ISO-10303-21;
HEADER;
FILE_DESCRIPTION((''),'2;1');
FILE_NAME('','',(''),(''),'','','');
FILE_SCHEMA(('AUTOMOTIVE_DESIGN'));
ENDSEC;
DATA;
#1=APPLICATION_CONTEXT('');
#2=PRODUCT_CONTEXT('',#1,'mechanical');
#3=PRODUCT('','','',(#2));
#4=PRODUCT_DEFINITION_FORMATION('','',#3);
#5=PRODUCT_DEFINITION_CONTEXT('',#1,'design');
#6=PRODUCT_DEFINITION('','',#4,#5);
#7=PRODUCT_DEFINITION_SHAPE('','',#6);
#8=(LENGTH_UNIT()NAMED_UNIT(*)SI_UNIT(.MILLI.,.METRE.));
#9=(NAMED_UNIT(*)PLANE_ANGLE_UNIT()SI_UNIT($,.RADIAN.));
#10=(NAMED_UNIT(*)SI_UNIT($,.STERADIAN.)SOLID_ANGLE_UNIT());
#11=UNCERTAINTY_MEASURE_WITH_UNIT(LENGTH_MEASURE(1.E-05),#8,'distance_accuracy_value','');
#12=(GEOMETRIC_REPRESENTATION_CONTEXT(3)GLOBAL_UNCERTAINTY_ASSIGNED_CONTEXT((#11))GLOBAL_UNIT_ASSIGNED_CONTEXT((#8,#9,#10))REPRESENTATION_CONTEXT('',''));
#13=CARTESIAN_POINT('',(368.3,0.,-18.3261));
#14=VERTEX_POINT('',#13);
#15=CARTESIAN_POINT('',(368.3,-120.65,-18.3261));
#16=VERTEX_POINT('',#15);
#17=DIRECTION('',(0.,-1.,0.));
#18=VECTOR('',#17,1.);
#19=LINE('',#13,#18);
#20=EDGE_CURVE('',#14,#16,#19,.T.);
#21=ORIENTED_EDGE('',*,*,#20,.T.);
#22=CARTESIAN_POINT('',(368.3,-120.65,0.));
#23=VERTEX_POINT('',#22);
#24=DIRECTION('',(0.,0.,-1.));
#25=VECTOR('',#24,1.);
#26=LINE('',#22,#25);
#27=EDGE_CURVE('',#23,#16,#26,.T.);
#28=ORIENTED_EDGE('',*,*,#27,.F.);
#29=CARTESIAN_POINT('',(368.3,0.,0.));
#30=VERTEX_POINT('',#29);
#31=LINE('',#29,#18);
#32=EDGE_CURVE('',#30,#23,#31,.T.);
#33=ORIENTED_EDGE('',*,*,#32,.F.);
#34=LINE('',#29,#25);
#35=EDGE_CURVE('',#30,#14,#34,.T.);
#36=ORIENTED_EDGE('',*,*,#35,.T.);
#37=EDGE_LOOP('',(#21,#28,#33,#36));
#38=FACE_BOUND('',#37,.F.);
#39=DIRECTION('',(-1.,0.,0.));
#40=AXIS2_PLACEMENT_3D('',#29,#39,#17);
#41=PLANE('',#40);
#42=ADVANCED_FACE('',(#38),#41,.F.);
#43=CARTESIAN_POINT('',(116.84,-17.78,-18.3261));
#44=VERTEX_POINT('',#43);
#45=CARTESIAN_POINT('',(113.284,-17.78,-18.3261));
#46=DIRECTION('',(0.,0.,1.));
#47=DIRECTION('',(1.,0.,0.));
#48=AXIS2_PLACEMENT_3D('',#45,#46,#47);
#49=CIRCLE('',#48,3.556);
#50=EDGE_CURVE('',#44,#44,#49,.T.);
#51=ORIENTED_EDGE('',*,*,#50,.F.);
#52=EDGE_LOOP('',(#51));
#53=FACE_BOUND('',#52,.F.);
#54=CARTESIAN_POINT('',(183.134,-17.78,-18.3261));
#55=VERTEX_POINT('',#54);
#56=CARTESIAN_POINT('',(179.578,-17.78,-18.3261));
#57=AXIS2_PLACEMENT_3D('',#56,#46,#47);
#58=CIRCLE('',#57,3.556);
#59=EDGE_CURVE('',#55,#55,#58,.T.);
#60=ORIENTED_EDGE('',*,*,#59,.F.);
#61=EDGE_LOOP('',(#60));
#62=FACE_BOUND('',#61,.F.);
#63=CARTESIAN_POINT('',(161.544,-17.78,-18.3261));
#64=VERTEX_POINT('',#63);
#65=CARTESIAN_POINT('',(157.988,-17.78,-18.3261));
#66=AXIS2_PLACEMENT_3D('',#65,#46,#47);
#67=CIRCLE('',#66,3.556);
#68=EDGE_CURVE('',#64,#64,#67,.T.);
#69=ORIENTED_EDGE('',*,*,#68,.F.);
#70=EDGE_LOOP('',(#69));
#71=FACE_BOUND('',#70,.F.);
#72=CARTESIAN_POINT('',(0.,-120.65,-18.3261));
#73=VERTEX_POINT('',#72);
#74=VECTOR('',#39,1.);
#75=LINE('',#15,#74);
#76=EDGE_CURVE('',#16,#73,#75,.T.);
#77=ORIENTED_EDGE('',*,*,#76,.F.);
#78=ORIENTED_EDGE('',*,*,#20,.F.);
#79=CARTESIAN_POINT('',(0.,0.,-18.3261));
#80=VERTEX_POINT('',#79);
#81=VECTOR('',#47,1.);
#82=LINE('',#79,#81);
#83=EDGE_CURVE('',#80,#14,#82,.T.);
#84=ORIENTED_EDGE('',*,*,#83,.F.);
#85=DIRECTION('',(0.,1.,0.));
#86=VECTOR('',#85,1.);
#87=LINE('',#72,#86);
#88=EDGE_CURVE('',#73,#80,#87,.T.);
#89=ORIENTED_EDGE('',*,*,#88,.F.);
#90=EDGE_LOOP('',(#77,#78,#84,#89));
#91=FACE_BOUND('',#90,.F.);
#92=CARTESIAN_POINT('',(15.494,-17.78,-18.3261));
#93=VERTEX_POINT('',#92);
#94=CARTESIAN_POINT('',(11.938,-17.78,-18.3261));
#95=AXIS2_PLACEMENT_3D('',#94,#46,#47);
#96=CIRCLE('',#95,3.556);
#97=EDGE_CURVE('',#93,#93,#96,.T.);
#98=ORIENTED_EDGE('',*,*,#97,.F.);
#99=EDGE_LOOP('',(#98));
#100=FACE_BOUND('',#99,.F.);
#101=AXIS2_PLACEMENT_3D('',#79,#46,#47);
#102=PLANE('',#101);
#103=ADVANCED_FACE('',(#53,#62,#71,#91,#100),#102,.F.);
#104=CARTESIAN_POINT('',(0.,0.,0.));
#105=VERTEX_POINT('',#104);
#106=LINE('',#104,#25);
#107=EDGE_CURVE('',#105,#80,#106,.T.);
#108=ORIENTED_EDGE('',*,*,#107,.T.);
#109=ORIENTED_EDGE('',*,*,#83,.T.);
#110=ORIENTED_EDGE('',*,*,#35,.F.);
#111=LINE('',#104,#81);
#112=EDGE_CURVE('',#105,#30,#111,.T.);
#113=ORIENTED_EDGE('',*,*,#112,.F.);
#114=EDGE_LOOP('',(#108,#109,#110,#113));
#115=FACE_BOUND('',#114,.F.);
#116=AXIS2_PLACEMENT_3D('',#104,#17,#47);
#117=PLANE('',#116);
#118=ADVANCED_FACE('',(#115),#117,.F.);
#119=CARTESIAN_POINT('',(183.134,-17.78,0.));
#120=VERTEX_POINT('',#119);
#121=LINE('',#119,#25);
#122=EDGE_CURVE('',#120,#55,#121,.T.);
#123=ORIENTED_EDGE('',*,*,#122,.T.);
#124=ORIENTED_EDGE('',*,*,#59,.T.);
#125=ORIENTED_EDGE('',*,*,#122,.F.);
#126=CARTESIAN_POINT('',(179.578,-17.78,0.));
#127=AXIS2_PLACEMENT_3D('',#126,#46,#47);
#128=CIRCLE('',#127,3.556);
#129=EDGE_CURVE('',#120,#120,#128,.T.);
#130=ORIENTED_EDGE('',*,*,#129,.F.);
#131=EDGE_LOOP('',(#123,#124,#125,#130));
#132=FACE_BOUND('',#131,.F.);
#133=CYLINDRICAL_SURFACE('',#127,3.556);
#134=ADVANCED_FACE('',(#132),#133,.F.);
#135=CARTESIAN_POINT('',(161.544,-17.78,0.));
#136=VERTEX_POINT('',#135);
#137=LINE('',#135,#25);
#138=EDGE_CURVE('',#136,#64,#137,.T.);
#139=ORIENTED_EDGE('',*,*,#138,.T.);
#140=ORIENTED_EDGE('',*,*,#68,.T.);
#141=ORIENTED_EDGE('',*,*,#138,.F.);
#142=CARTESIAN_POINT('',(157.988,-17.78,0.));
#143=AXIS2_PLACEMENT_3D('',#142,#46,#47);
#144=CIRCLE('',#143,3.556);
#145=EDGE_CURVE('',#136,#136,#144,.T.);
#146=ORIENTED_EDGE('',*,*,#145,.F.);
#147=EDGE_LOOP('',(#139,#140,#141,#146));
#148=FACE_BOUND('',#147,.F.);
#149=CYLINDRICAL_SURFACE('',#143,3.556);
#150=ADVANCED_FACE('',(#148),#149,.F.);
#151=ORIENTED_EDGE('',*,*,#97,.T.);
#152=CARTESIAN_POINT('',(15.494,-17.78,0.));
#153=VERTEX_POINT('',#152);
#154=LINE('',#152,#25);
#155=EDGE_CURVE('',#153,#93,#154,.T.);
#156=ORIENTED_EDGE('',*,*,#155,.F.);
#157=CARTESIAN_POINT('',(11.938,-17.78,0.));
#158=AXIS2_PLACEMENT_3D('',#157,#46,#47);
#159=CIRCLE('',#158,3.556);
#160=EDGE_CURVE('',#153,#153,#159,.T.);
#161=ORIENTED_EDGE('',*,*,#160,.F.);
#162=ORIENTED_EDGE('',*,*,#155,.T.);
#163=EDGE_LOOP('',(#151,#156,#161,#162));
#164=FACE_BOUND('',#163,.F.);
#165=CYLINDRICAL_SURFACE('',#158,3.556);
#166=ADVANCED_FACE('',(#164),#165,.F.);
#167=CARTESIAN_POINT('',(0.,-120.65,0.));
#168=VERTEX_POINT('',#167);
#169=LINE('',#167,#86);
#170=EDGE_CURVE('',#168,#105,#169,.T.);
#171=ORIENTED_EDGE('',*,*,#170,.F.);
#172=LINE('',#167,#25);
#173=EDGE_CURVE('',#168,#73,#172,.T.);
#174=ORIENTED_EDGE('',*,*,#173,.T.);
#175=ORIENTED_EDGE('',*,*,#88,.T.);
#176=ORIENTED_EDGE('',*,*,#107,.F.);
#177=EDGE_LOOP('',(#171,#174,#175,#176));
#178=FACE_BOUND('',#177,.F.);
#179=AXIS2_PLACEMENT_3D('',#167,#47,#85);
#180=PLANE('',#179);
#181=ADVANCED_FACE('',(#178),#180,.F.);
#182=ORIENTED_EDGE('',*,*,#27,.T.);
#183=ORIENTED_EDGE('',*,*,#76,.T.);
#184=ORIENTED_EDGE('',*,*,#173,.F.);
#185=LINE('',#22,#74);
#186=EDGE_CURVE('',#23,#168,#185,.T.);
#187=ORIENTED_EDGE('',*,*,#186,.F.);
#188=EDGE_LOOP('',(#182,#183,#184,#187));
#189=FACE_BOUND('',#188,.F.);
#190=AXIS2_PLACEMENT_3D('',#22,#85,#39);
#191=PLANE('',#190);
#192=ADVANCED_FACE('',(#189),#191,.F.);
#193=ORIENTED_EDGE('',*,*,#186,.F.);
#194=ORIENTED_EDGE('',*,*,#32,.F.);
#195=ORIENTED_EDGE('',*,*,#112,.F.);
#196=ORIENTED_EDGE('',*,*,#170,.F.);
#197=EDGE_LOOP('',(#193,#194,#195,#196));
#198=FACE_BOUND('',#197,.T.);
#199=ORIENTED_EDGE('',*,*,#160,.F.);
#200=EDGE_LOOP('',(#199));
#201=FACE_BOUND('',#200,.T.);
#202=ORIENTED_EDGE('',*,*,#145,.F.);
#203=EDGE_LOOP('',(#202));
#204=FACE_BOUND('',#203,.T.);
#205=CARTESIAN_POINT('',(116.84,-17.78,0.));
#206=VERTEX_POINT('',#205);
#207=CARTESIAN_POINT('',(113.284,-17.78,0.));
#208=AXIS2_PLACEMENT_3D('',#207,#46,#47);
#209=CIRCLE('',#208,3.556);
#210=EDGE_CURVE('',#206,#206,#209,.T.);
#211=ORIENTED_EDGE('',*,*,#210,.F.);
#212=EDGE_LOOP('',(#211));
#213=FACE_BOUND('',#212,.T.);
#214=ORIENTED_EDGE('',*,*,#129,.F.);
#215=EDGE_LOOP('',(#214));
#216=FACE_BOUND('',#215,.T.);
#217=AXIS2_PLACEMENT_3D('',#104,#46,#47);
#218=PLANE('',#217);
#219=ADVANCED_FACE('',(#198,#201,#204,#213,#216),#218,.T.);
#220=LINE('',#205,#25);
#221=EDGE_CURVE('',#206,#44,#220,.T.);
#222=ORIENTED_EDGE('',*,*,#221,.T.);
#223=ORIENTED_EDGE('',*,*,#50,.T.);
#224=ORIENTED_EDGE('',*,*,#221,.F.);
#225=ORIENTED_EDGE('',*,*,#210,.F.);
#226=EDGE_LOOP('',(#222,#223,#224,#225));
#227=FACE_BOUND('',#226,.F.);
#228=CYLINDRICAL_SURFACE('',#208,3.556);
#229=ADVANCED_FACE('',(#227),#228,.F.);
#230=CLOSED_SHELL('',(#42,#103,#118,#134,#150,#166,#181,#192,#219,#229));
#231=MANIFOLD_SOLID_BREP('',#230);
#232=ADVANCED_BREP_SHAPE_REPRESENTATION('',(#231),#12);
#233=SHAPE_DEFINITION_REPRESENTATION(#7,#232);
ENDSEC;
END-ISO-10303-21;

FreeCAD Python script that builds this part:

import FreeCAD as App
import Part
import Sketcher
from FreeCAD import Vector
Q = App.Units.Quantity

doc = App.newDocument("Part")
body = doc.addObject("PartDesign::Body", "Body")

sketch1 = body.newObject("Sketcher::SketchObject", "Sketch")
sketch1.AttachmentSupport = (doc.getObject("XY_Plane"), [""])
sketch1.MapMode = "FlatFace"
sketch1.addGeometry(Part.LineSegment(Vector(368.3, 0, 0), Vector(0, 0, 0)), False)
sketch1.addGeometry(Part.LineSegment(Vector(0, 0, 0), Vector(0, -120.7, 0)), False)
sketch1.addGeometry(Part.LineSegment(Vector(0, -120.7, 0), Vector(368.3, -120.7, 0)), False)
sketch1.addGeometry(Part.LineSegment(Vector(368.3, -120.7, 0), Vector(368.3, 0, 0)), False)
sketch1.addGeometry(Part.Circle(Vector(11.9, -17.8, 0), Vector(0, 0, 1), 3.6), False)
sketch1.addGeometry(Part.Circle(Vector(113.3, -17.8, 0), Vector(0, 0, 1), 3.6), False)
sketch1.addGeometry(Part.Circle(Vector(158, -17.8, 0), Vector(0, 0, 1), 3.6), False)
sketch1.addGeometry(Part.Circle(Vector(179.6, -17.8, 0), Vector(0, 0, 1), 3.6), False)
sketch1.addConstraint(Sketcher.Constraint("Coincident", 0, 2, 1, 1))
sketch1.addConstraint(Sketcher.Constraint("Coincident", 1, 2, 2, 1))
sketch1.addConstraint(Sketcher.Constraint("Coincident", 2, 2, 3, 1))
sketch1.addConstraint(Sketcher.Constraint("Coincident", 3, 2, 0, 1))
sketch1.addConstraint(Sketcher.Constraint("Horizontal", 0))
sketch1.addConstraint(Sketcher.Constraint("Vertical", 1))
sketch1.addConstraint(Sketcher.Constraint("Horizontal", 2))
sketch1.addConstraint(Sketcher.Constraint("Vertical", 3))
sketch1.addConstraint(Sketcher.Constraint("Coincident", 0, 2, -1, 1))
sketch1.addConstraint(Sketcher.Constraint("Equal", 4, 5))
sketch1.addConstraint(Sketcher.Constraint("Equal", 5, 6))
sketch1.addConstraint(Sketcher.Constraint("Equal", 6, 7))
sketch1.addConstraint(Sketcher.Constraint("Horizontal", 4, 3, 5, 3))
sketch1.addConstraint(Sketcher.Constraint("Horizontal", 5, 3, 6, 3))
sketch1.addConstraint(Sketcher.Constraint("Horizontal", 6, 3, 7, 3))
sketch1.addConstraint(Sketcher.Constraint("Diameter", 4, Q("0.28 in")))
sketch1.addConstraint(Sketcher.Constraint("DistanceX", 0, 2, 0, 1, Q("14.5 in")))
sketch1.addConstraint(Sketcher.Constraint("DistanceY", 1, 2, 1, 1, Q("4.75 in")))
sketch1.addConstraint(Sketcher.Constraint("DistanceX", -1, 1, 4, 3, Q("0.47 in")))
sketch1.addConstraint(Sketcher.Constraint("DistanceX", 4, 3, 5, 3, Q("3.99 in")))
sketch1.addConstraint(Sketcher.Constraint("DistanceX", 5, 3, 6, 3, Q("1.76 in")))
sketch1.addConstraint(Sketcher.Constraint("DistanceX", 6, 3, 7, 3, Q("0.85 in")))
sketch1.addConstraint(Sketcher.Constraint("DistanceY", 1, 2, 4, 3, Q("4.05 in")))
pad1 = body.newObject("PartDesign::Pad", "Pad")
pad1.Profile = sketch1
pad1.Length = Q("0.7215 in")
pad1.Reversed = True

doc.recompute()
